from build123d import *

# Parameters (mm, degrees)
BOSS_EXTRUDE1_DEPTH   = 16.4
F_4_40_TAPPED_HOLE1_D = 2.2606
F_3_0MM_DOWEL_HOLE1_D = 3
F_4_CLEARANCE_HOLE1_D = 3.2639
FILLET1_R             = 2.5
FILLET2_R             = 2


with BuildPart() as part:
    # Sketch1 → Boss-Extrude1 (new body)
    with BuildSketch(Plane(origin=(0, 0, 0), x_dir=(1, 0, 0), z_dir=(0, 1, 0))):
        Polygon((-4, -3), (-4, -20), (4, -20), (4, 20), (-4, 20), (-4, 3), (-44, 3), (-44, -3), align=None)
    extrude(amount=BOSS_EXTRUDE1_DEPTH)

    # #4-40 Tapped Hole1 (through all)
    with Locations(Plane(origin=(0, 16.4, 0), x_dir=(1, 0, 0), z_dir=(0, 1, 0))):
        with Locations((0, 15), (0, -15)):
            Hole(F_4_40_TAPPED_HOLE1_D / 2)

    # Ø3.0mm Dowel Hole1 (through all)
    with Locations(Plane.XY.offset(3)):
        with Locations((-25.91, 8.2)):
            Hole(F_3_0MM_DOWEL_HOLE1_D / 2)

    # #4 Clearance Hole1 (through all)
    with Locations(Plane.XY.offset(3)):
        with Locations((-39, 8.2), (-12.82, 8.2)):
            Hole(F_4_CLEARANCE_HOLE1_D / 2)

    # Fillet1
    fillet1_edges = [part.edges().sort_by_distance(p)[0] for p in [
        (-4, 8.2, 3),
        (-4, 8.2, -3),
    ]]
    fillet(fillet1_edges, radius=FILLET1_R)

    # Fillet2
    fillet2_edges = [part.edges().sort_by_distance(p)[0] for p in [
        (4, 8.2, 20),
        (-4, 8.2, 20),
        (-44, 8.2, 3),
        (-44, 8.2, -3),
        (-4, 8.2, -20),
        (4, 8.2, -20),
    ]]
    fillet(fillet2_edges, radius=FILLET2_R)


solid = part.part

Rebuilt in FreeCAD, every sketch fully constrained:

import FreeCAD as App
import Part
import Sketcher

V = App.Vector


def edges_at(feature, points):
    """Names of the edges that pass closest to the given points."""
    edges = feature.Shape.Edges
    near = lambda p: min(range(len(edges)), key=lambda i: edges[i].distToShape(Part.Vertex(*p))[0])
    return sorted({f"Edge{near(p) + 1}" for p in points})

doc = App.newDocument("Part")
body = doc.addObject("PartDesign::Body", "Body")

# Sketch on XZ plane
sketch1 = doc.addObject("Sketcher::SketchObject", "Sketch")
body.addObject(sketch1)
sketch1.AttachmentSupport = (doc.XZ_Plane, [""])
sketch1.MapMode = "FlatFace"
sketch1.addGeometry([
    Part.LineSegment(V(-4, 3, 0), V(-4, 20, 0)),  # 0
    Part.LineSegment(V(-4, 20, 0), V(4, 20, 0)),  # 1
    Part.LineSegment(V(4, 20, 0), V(4, -20, 0)),  # 2
    Part.LineSegment(V(4, -20, 0), V(-4, -20, 0)),  # 3
    Part.LineSegment(V(-4, -20, 0), V(-4, -3, 0)),  # 4
    Part.LineSegment(V(-4, -3, 0), V(-44, -3, 0)),  # 5
    Part.LineSegment(V(-44, -3, 0), V(-44, 3, 0)),  # 6
    Part.LineSegment(V(-44, 3, 0), V(-4, 3, 0)),  # 7
], False)
sketch1.addConstraint([
    Sketcher.Constraint("Coincident", 0, 2, 1, 1),
    Sketcher.Constraint("Coincident", 1, 2, 2, 1),
    Sketcher.Constraint("Coincident", 2, 2, 3, 1),
    Sketcher.Constraint("Coincident", 3, 2, 4, 1),
    Sketcher.Constraint("Coincident", 4, 2, 5, 1),
    Sketcher.Constraint("Coincident", 5, 2, 6, 1),
    Sketcher.Constraint("Coincident", 6, 2, 7, 1),
    Sketcher.Constraint("Coincident", 7, 2, 0, 1),
    Sketcher.Constraint("Vertical", 0),
    Sketcher.Constraint("Horizontal", 1),
    Sketcher.Constraint("Vertical", 2),
    Sketcher.Constraint("Horizontal", 3),
    Sketcher.Constraint("Vertical", 4),
    Sketcher.Constraint("Horizontal", 5),
    Sketcher.Constraint("Vertical", 6),
    Sketcher.Constraint("Horizontal", 7),
    Sketcher.Constraint("Symmetric", 0, 2, 2, 2, -1, 1),
    Sketcher.Constraint("Symmetric", 4, 2, 7, 2, -1),
    Sketcher.Constraint("Equal", 7, 2),
    Sketcher.Constraint("DistanceX", 1, 1, 1, 2, 8.0),
    Sketcher.Constraint("DistanceX", 5, 2, 5, 1, 40.0),
    Sketcher.Constraint("DistanceY", 0, 1, 0, 2, 17.0),
])
pad1 = doc.addObject("PartDesign::Pad", "Pad")
body.addObject(pad1)
pad1.Profile = sketch1
pad1.Length = 16.4
pad1.Reversed = True

# Sketch on XZ plane
sketch2 = doc.addObject("Sketcher::SketchObject", "Sketch001")
body.addObject(sketch2)
sketch2.AttachmentSupport = (doc.XZ_Plane, [""])
sketch2.MapMode = "FlatFace"
sketch2.AttachmentOffset = App.Placement(V(0, 0, -16.4), App.Rotation())
sketch2.addGeometry([
    Part.Circle(V(0, -15, 0), V(0, 0, 1), 1.1303),
    Part.Circle(V(0, 15, 0), V(0, 0, 1), 1.1303),
], False)
sketch2.addConstraint([
    Sketcher.Constraint("Equal", 0, 1),
    Sketcher.Constraint("Symmetric", 0, 3, 1, 3, -1, 1),
    Sketcher.Constraint("PointOnObject", 0, 3, -2),
    Sketcher.Constraint("DistanceY", 0, 3, -1, 1, 15.0),
    Sketcher.Constraint("Diameter", 0, 2.2606),
])
doc.recompute()
hole = doc.addObject("PartDesign::Hole", "Hole")
body.addObject(hole)
hole.Profile = sketch2
hole.ThreadType = "None"
hole.Diameter = 2.2606
hole.DepthType = "ThroughAll"
hole.Reversed = True

# Sketch on XY plane
sketch3 = doc.addObject("Sketcher::SketchObject", "Sketch002")
body.addObject(sketch3)
sketch3.AttachmentSupport = (doc.XY_Plane, [""])
sketch3.MapMode = "FlatFace"
sketch3.AttachmentOffset = App.Placement(V(0, 0, 3), App.Rotation())
sketch3.addGeometry(Part.Circle(V(-25.91, 8.2, 0), V(0, 0, 1), 1.5), False)
sketch3.addConstraint([
    Sketcher.Constraint("Diameter", 0, 3.0),
    Sketcher.Constraint("DistanceY", -1, 1, 0, 3, 8.2),
    Sketcher.Constraint("DistanceX", 0, 3, -1, 1, 25.91),
])
doc.recompute()
hole2 = doc.addObject("PartDesign::Hole", "Hole001")
body.addObject(hole2)
hole2.Profile = sketch3
hole2.ThreadType = "None"
hole2.Diameter = 3
hole2.DepthType = "ThroughAll"

# Sketch on XY plane
sketch4 = doc.addObject("Sketcher::SketchObject", "Sketch003")
body.addObject(sketch4)
sketch4.AttachmentSupport = (doc.XY_Plane, [""])
sketch4.MapMode = "FlatFace"
sketch4.AttachmentOffset = App.Placement(V(0, 0, 3), App.Rotation())
sketch4.addGeometry([
    Part.Circle(V(-39, 8.2, 0), V(0, 0, 1), 1.63195),
    Part.Circle(V(-12.82, 8.2, 0), V(0, 0, 1), 1.63195),
], False)
sketch4.addConstraint([
    Sketcher.Constraint("Equal", 0, 1),
    Sketcher.Constraint("Horizontal", 0, 3, 1, 3),
    Sketcher.Constraint("DistanceX", 0, 3, -1, 1, 39.0),
    Sketcher.Constraint("Diameter", 0, 3.2639),
    Sketcher.Constraint("DistanceY", -1, 1, 0, 3, 8.2),
    Sketcher.Constraint("DistanceX", 1, 3, -1, 1, 12.82),
])
doc.recompute()
hole3 = doc.addObject("PartDesign::Hole", "Hole002")
body.addObject(hole3)
hole3.Profile = sketch4
hole3.ThreadType = "None"
hole3.Diameter = 3.2639
hole3.DepthType = "ThroughAll"
doc.recompute()

fillet = doc.addObject("PartDesign::Fillet", "Fillet")
body.addObject(fillet)
fillet.Base = (hole3, edges_at(hole3, [(-4, 8.2, 3), (-4, 8.2, -3)]))
fillet.Radius = 2.5
doc.recompute()

fillet2 = doc.addObject("PartDesign::Fillet", "Fillet001")
body.addObject(fillet2)
fillet2.Base = (fillet, edges_at(fillet, [
    (4, 8.2, 20),
    (-4, 8.2, 20),
    (-44, 8.2, 3),
    (-44, 8.2, -3),
    (-4, 8.2, -20),
    (4, 8.2, -20),
]))
fillet2.Radius = 2

doc.recompute()
